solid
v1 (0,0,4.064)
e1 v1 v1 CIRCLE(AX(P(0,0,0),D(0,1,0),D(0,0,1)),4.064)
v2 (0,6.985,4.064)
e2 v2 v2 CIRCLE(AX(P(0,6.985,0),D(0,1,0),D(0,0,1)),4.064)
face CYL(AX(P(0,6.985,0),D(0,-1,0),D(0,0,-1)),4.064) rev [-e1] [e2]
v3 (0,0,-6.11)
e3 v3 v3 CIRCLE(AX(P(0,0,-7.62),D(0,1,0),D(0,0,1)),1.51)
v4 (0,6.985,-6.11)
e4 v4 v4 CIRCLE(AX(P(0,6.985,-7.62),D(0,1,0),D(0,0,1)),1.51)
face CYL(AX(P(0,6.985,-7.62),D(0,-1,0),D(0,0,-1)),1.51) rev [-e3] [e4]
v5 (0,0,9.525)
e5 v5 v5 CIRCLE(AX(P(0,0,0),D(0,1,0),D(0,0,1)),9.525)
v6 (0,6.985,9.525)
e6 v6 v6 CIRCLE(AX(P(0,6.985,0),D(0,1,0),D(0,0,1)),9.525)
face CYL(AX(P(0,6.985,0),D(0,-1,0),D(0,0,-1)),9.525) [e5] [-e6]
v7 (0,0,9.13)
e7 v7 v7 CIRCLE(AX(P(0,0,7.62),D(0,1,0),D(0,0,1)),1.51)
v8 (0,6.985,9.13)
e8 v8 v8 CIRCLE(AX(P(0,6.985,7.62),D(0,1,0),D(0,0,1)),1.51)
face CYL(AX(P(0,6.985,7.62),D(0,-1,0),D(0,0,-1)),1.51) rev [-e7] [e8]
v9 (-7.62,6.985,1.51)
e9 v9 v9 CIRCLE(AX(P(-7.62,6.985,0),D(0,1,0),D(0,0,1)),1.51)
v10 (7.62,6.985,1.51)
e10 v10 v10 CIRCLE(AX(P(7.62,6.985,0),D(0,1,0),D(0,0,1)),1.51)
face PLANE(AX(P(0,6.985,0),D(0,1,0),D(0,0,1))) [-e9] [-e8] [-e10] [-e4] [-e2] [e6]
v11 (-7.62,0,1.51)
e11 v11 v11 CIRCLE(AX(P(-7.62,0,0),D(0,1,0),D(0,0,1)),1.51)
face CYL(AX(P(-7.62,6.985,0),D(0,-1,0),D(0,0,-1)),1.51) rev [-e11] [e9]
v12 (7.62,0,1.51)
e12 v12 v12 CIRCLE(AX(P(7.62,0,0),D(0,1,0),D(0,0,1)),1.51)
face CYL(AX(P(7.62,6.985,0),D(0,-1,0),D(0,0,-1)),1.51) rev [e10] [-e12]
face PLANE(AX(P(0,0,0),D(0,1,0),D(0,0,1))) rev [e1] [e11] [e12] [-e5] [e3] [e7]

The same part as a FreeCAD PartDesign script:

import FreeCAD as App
import Part
import Sketcher

V = App.Vector
Q = App.Units.Quantity

doc = App.newDocument("Part")
body = doc.addObject("PartDesign::Body", "Body")

sketch1 = body.newObject("Sketcher::SketchObject", "Sketch")
sketch1.AttachmentSupport = (doc.getObject("XZ_Plane"), [""])
sketch1.MapMode = "FlatFace"
sketch1.addGeometry(Part.Circle(V(0, 0, 0), V(0, 0, 1), 9.5), False)
sketch1.addGeometry(Part.Circle(V(0, 7.6, 0), V(0, 0, 1), 1.5), False)
sketch1.addGeometry(Part.Circle(V(-7.6, 0, 0), V(0, 0, 1), 1.5), False)
sketch1.addGeometry(Part.Circle(V(0, 0, 0), V(0, 0, 1), 4.1), False)
sketch1.addGeometry(Part.Circle(V(7.6, 0, 0), V(0, 0, 1), 1.5), False)
sketch1.addGeometry(Part.Circle(V(0, -7.6, 0), V(0, 0, 1), 1.5), False)
sketch1.addConstraint(Sketcher.Constraint("Coincident", 0, 3, -1, 1))
sketch1.addConstraint(Sketcher.Constraint("Coincident", 3, 3, -1, 1))
sketch1.addConstraint(Sketcher.Constraint("Equal", 1, 2))
sketch1.addConstraint(Sketcher.Constraint("Equal", 2, 4))
sketch1.addConstraint(Sketcher.Constraint("Equal", 4, 5))
sketch1.addConstraint(Sketcher.Constraint("Symmetric", 2, 3, 4, 3, -1, 1))
sketch1.addConstraint(Sketcher.Constraint("Symmetric", 1, 3, 5, 3, -1, 1))
sketch1.addConstraint(Sketcher.Constraint("PointOnObject", 1, 3, -2))
sketch1.addConstraint(Sketcher.Constraint("PointOnObject", 2, 3, -1))
sketch1.addConstraint(Sketcher.Constraint("Diameter", 0, Q("0.75 in")))
sketch1.addConstraint(Sketcher.Constraint("Diameter", 3, Q("0.32 in")))
sketch1.addConstraint(Sketcher.Constraint("DistanceY", -1, 1, 1, 3, Q("0.3 in")))
sketch1.addConstraint(Sketcher.Constraint("DistanceX", 2, 3, -1, 1, Q("0.3 in")))
sketch1.addConstraint(Sketcher.Constraint("Diameter", 1, Q("3.02 mm")))
pad1 = body.newObject("PartDesign::Pad", "Pad")
pad1.Profile = sketch1
pad1.Length = Q("0.275 in")
pad1.Reversed = True

doc.recompute()
